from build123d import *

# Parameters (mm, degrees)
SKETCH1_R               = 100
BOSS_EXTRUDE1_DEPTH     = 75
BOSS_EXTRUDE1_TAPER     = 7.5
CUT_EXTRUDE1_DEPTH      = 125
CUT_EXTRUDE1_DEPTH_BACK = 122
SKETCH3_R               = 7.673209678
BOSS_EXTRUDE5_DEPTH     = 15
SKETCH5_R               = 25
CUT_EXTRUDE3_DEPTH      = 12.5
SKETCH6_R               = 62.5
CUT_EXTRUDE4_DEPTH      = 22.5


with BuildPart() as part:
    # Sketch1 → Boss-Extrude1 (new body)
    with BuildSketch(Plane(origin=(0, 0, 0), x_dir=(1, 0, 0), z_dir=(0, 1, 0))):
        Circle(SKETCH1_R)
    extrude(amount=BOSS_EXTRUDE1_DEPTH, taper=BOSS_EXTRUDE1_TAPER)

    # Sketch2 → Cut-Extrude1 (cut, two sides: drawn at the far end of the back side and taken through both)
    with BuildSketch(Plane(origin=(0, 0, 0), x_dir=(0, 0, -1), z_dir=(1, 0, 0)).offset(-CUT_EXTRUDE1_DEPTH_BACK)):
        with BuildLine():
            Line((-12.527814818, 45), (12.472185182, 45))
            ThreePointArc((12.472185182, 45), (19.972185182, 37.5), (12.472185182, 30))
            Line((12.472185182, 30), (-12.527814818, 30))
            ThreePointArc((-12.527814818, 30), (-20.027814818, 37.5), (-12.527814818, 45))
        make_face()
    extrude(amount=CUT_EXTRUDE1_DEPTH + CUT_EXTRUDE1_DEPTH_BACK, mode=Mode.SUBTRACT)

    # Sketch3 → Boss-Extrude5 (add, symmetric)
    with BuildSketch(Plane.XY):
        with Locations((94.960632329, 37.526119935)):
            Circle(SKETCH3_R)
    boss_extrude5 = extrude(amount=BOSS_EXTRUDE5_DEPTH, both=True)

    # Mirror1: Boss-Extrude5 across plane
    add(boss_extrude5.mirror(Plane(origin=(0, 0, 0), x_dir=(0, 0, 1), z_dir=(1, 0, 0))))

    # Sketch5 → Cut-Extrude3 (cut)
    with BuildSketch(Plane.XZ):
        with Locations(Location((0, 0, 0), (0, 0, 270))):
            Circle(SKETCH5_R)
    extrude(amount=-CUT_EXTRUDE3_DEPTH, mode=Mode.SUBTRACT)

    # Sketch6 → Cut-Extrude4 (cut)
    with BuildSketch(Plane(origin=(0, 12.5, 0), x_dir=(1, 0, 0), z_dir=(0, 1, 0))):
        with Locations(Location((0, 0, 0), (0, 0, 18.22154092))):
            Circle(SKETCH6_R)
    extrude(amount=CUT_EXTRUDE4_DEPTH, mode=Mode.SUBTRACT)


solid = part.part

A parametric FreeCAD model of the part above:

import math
import FreeCAD as App
import Part
import Sketcher

doc = App.newDocument("Part")
body = doc.addObject("PartDesign::Body", "Body")

# Sketch on XZ plane
sketch1 = body.newObject("Sketcher::SketchObject", "Sketch")
sketch1.AttachmentSupport = (doc.getObject("XZ_Plane"), [""])
sketch1.MapMode = "FlatFace"
sketch1.addGeometry(Part.Circle(App.Vector(0, 0, 0), App.Vector(0, 0, 1), 100), False)
sketch1.addConstraint([
    Sketcher.Constraint("Coincident", 0, 3, -1, 1),
    Sketcher.Constraint("Diameter", 0, 200.0),
])
pad1 = body.newObject("PartDesign::Pad", "Pad")
pad1.Profile = sketch1
pad1.Length = 75
pad1.Reversed = True
pad1.TaperAngle = -7.5

# Sketch on YZ plane
sketch2 = body.newObject("Sketcher::SketchObject", "Sketch001")
sketch2.AttachmentSupport = (doc.getObject("YZ_Plane"), [""])
sketch2.MapMode = "FlatFace"
sketch2.addGeometry([
    Part.LineSegment(App.Vector(45, -12, 0), App.Vector(45, 13, 0)),
    Part.ArcOfCircle(Part.Circle(App.Vector(38, 13, 0), App.Vector(0, 0, 1), 8), math.radians(0), math.radians(180)),
    Part.LineSegment(App.Vector(30, 13, 0), App.Vector(30, -12, 0)),
    Part.ArcOfCircle(Part.Circle(App.Vector(38, -12, 0), App.Vector(0, 0, 1), 8), math.radians(180), math.radians(360)),
], False)
sketch2.addConstraint([
    Sketcher.Constraint("Tangent", 0, 2, 1, 1),
    Sketcher.Constraint("Tangent", 1, 2, 2, 1),
    Sketcher.Constraint("Tangent", 2, 2, 3, 1),
    Sketcher.Constraint("Tangent", 3, 2, 0, 1),
    Sketcher.Constraint("Vertical", 0),
    Sketcher.Constraint("Vertical", 2),
    Sketcher.Constraint("Radius", 1, 7.5),
    Sketcher.Constraint("DistanceY", 0, 1, 0, 2, 25.0),
    Sketcher.Constraint("DistanceX", -1, 1, 0, 2, 45.0),
    Sketcher.Constraint("DistanceY", -1, 1, 1, 3, 12.527815),
])
pocket1 = body.newObject("PartDesign::Pocket", "Pocket")
pocket1.Profile = sketch2
pocket1.Type = "ThroughAll"
pocket1.Midplane = True

# Sketch on XY plane
sketch3 = body.newObject("Sketcher::SketchObject", "Sketch002")
sketch3.AttachmentSupport = (doc.getObject("XY_Plane"), [""])
sketch3.MapMode = "FlatFace"
sketch3.addGeometry(Part.Circle(App.Vector(95, 38, 0), App.Vector(0, 0, 1), 8), False)
sketch3.addConstraint([
    Sketcher.Constraint("Diameter", 0, 15.346419),
    Sketcher.Constraint("DistanceY", -1, 1, 0, 3, 37.52612),
    Sketcher.Constraint("DistanceX", -1, 1, 0, 3, 94.960632),
])
pad2 = body.newObject("PartDesign::Pad", "Pad001")
pad2.Profile = sketch3
pad2.Length = 30
pad2.Midplane = True
doc.recompute()

mirrored = body.newObject("PartDesign::Mirrored", "Mirrored")
mirrored.Originals = [pad2]
mirrored.MirrorPlane = (doc.getObject("YZ_Plane"), [""])
body.Tip = mirrored

# Sketch on XZ plane
sketch4 = body.newObject("Sketcher::SketchObject", "Sketch003")
sketch4.AttachmentSupport = (doc.getObject("XZ_Plane"), [""])
sketch4.MapMode = "FlatFace"
sketch4.addGeometry(Part.Circle(App.Vector(0, 0, 0), App.Vector(0, 0, 1), 25), False)
sketch4.addConstraint([
    Sketcher.Constraint("Coincident", 0, 3, -1, 1),
    Sketcher.Constraint("Diameter", 0, 50.0),
])
pocket2 = body.newObject("PartDesign::Pocket", "Pocket001")
pocket2.Profile = sketch4
pocket2.Length = 12.5

# Sketch on XZ plane
sketch5 = body.newObject("Sketcher::SketchObject", "Sketch004")
sketch5.AttachmentSupport = (doc.getObject("XZ_Plane"), [""])
sketch5.MapMode = "FlatFace"
sketch5.AttachmentOffset = App.Placement(App.Vector(0, 0, -12.5), App.Rotation())
sketch5.addGeometry(Part.Circle(App.Vector(0, 0, 0), App.Vector(0, 0, 1), 62), False)
sketch5.addConstraint([
    Sketcher.Constraint("Coincident", 0, 3, -1, 1),
    Sketcher.Constraint("Diameter", 0, 125.0),
])
pocket3 = body.newObject("PartDesign::Pocket", "Pocket002")
pocket3.Profile = sketch5
pocket3.Length = 22.5

doc.recompute()
